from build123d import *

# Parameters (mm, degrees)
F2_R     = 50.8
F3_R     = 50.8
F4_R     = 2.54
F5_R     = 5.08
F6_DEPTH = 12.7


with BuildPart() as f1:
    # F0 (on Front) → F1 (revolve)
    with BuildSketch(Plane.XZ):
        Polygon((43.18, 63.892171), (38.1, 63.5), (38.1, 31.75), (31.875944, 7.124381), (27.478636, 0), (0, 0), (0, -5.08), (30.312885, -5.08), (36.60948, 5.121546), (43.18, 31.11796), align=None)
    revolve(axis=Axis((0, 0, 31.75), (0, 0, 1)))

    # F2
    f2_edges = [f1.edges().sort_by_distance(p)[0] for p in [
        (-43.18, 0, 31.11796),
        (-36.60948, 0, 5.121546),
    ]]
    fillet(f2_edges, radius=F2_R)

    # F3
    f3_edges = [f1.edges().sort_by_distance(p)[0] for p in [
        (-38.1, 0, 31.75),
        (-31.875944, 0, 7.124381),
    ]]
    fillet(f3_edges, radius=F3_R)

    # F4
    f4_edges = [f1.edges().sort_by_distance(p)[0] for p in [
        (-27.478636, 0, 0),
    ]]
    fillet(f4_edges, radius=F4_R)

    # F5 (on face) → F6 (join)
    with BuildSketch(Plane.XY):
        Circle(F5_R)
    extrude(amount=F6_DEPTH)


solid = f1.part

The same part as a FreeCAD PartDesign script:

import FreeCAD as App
import Part
import Sketcher
Q = App.Units.Quantity


def edges_at(feature, points):
    """Names of the edges that pass closest to the given points."""
    edges = feature.Shape.Edges
    near = lambda p: min(range(len(edges)), key=lambda i: edges[i].distToShape(Part.Vertex(*p))[0])
    return sorted({f"Edge{near(p) + 1}" for p in points})


def add_polygon(sketch, points):
    """Adds a closed chain of lines whose ends are joined by coincident constraints."""
    first, n = sketch.GeometryCount, len(points)
    for a, b in zip(points, points[1:] + points[:1]):
        sketch.addGeometry(Part.LineSegment(App.Vector(*a, 0), App.Vector(*b, 0)), False)
    for i in range(n):
        sketch.addConstraint(Sketcher.Constraint("Coincident", first + i, 2, first + (i + 1) % n, 1))

doc = App.newDocument("Part")
body = doc.addObject("PartDesign::Body", "Body")

# Sketch on XZ plane
sketch1 = doc.addObject("Sketcher::SketchObject", "Sketch")
body.addObject(sketch1)
sketch1.AttachmentSupport = (doc.XZ_Plane, [""])
sketch1.MapMode = "FlatFace"
add_polygon(sketch1, [(43, 64), (38, 64), (38, 32), (32, 7), (27, 0), (0, 0), (0, -5), (30, -5), (37, 5), (43, 31)])  # lines 0-9
sketch1.addConstraint([
    Sketcher.Constraint("Vertical", 1),
    Sketcher.Constraint("Horizontal", 4),
    Sketcher.Constraint("Vertical", 5),
    Sketcher.Constraint("Horizontal", 6),
    Sketcher.Constraint("Vertical", 9),
    Sketcher.Constraint("Coincident", 4, 2, -1, 1),
    Sketcher.Constraint("Parallel", 3, 7),
    Sketcher.Constraint("Parallel", 2, 8),
    Sketcher.Constraint("Distance", 2, Q("1 in")),
    Sketcher.Constraint("DistanceY", 5, 2, 5, 1, Q("0.2 in")),
    Sketcher.Constraint("DistanceY", 1, 2, 1, 1, Q("1.25 in")),
    Sketcher.Constraint("DistanceX", -1, 1, 0, 2, Q("1.5 in")),
    Sketcher.Constraint("DistanceY", -1, 1, 0, 2, Q("2.5 in")),
    Sketcher.Constraint("DistanceX", -1, 1, 8, 2, Q("1.7 in")),
    Sketcher.Constraint("Distance", 8, 26.813901),
    Sketcher.Constraint("DistanceY", 9, 1, 9, 2, 32.774211),
    Sketcher.Constraint("Distance", 7, 11.988271),
    Sketcher.Constraint("DistanceX", 4, 2, 4, 1, 27.478636),
    Sketcher.Constraint("DistanceX", 6, 1, 6, 2, 30.312885),
])
revolution = doc.addObject("PartDesign::Revolution", "Revolution")
body.addObject(revolution)
revolution.Profile = sketch1
revolution.ReferenceAxis = (sketch1, ["V_Axis"])
revolution.Angle = 360
doc.recompute()

fillet = doc.addObject("PartDesign::Fillet", "Fillet")
body.addObject(fillet)
fillet.Base = (revolution, edges_at(revolution, [(-43.18, 0, 31.118), (-36.609, 0, 5.122)]))
fillet.Radius = Q("2 in")
doc.recompute()

fillet2 = doc.addObject("PartDesign::Fillet", "Fillet001")
body.addObject(fillet2)
fillet2.Base = (fillet, edges_at(fillet, [(-38.1, 0, 31.75), (-31.876, 0, 7.124)]))
fillet2.Radius = Q("2 in")
doc.recompute()

fillet3 = doc.addObject("PartDesign::Fillet", "Fillet002")
body.addObject(fillet3)
fillet3.Base = (fillet2, edges_at(fillet2, [(-27.479, 0, 0)]))
fillet3.Radius = Q("0.1 in")

# Sketch on XY plane
sketch2 = doc.addObject("Sketcher::SketchObject", "Sketch001")
body.addObject(sketch2)
sketch2.AttachmentSupport = (doc.XY_Plane, [""])
sketch2.MapMode = "FlatFace"
sketch2.addGeometry(Part.Circle(App.Vector(0, 0, 0), App.Vector(0, 0, 1), 5), False)
sketch2.addConstraint([
    Sketcher.Constraint("Coincident", 0, 3, -1, 1),
    Sketcher.Constraint("Diameter", 0, Q("0.4 in")),
])
pad1 = doc.addObject("PartDesign::Pad", "Pad")
body.addObject(pad1)
pad1.Profile = sketch2
pad1.Length = Q("0.5 in")

doc.recompute()
